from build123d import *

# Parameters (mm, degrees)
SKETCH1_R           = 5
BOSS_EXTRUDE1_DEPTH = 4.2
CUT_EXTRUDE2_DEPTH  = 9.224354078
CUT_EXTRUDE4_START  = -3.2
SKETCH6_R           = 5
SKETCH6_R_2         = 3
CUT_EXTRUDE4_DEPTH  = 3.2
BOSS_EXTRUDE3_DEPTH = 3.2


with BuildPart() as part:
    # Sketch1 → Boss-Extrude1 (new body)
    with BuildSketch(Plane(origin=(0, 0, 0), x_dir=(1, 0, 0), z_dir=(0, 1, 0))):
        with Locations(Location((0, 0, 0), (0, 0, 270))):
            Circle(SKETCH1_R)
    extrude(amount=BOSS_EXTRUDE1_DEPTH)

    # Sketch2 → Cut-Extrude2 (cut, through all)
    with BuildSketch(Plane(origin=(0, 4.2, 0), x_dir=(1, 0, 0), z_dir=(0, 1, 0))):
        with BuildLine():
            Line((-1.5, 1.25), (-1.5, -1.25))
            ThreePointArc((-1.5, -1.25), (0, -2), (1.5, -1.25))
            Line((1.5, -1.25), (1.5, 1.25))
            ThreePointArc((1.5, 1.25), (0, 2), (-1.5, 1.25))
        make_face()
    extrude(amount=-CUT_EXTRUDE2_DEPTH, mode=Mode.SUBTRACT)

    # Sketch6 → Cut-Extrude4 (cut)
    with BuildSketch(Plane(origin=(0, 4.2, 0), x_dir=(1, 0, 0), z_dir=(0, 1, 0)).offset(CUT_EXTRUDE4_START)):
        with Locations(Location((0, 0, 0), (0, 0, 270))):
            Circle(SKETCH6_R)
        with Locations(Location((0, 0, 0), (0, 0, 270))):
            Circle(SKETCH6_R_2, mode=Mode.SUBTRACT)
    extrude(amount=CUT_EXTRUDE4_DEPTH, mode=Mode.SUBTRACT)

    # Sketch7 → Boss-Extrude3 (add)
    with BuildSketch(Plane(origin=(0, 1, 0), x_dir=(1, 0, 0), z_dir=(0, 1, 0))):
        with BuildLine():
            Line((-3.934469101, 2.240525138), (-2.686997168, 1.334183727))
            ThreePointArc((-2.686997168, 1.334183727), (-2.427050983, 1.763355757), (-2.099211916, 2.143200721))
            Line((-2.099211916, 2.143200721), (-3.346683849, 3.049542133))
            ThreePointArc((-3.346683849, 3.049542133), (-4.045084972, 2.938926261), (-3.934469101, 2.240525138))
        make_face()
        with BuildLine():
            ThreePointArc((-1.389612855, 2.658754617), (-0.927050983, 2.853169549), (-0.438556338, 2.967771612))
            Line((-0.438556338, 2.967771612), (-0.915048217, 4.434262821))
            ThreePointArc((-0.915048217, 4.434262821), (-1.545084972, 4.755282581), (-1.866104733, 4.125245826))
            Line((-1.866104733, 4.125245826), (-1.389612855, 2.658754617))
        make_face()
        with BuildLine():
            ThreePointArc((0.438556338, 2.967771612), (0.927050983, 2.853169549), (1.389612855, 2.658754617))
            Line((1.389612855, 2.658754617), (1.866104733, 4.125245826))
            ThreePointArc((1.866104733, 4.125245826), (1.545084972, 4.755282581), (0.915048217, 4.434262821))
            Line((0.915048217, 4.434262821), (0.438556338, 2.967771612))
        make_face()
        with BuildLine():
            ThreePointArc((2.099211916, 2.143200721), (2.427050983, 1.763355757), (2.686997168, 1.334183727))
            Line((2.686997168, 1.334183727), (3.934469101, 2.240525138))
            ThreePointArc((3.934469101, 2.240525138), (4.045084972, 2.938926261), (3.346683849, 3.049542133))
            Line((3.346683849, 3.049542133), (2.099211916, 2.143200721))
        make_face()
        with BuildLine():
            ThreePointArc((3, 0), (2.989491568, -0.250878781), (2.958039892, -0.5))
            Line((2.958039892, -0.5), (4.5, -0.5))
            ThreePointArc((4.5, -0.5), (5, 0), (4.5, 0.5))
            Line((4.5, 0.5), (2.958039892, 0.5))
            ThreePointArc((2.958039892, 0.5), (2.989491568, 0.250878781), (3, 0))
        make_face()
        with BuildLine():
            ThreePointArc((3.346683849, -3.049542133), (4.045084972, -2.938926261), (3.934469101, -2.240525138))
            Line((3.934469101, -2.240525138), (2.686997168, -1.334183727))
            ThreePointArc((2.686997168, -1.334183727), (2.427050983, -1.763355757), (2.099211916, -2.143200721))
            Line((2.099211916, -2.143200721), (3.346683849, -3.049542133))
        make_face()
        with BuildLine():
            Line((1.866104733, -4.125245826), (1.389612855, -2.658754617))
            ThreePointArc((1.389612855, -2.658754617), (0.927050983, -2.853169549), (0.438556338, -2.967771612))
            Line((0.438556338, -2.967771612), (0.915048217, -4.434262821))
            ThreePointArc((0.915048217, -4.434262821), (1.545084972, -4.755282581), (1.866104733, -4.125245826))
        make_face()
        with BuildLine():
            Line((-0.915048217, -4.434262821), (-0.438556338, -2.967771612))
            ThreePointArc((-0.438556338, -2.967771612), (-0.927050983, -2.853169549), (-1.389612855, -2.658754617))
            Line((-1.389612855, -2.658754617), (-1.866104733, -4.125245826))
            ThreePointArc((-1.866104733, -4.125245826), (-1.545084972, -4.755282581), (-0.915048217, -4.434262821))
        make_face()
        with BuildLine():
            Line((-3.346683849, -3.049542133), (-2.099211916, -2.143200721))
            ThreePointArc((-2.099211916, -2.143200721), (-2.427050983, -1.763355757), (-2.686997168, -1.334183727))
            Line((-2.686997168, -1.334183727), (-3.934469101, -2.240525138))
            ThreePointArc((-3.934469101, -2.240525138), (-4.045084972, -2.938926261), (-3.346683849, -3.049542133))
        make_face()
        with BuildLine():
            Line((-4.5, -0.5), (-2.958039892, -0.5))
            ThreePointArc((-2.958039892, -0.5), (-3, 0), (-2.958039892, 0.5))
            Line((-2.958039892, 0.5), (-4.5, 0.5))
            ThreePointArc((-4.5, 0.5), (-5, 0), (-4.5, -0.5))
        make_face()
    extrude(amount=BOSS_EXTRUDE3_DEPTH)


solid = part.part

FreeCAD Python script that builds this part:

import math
import FreeCAD as App
import Part
import Sketcher
Q = App.Units.Quantity

doc = App.newDocument("Part")
body = doc.addObject("PartDesign::Body", "Body")

# Sketch on XZ plane
sketch1 = doc.addObject("Sketcher::SketchObject", "Sketch")
body.addObject(sketch1)
sketch1.AttachmentSupport = (doc.XZ_Plane, [""])
sketch1.MapMode = "FlatFace"
sketch1.addGeometry(Part.Circle(App.Vector(0, 0, 0), App.Vector(0, 0, 1), 5), False)
sketch1.addConstraint([
    Sketcher.Constraint("Coincident", 0, 3, -1, 1),
    Sketcher.Constraint("Diameter", 0, 10.0),
])
pad1 = doc.addObject("PartDesign::Pad", "Pad")
body.addObject(pad1)
pad1.Profile = sketch1
pad1.Length = 4.2
pad1.Reversed = True

# Sketch on XZ plane
sketch2 = doc.addObject("Sketcher::SketchObject", "Sketch001")
body.addObject(sketch2)
sketch2.AttachmentSupport = (doc.XZ_Plane, [""])
sketch2.MapMode = "FlatFace"
sketch2.AttachmentOffset = App.Placement(App.Vector(0, 0, -4.2), App.Rotation())
sketch2.addGeometry([
    Part.LineSegment(App.Vector(-1.5, -1.2, 0), App.Vector(-1.5, 1.2, 0)),
    Part.ArcOfCircle(Part.Circle(App.Vector(0, 0.1, 0), App.Vector(0, 0, 1), 1.9), math.radians(37), math.radians(143)),
    Part.LineSegment(App.Vector(1.5, 1.2, 0), App.Vector(1.5, -1.2, 0)),
    Part.ArcOfCircle(Part.Circle(App.Vector(0, -0.1, 0), App.Vector(0, 0, 1), 1.9), math.radians(-143), math.radians(-37)),
], False)
sketch2.addConstraint([
    Sketcher.Constraint("Coincident", 0, 2, 1, 2),
    Sketcher.Constraint("Coincident", 1, 1, 2, 1),
    Sketcher.Constraint("Coincident", 2, 2, 3, 2),
    Sketcher.Constraint("Coincident", 3, 1, 0, 1),
    Sketcher.Constraint("Vertical", 0),
    Sketcher.Constraint("Vertical", 2),
    Sketcher.Constraint("Equal", 1, 3),
    Sketcher.Constraint("Symmetric", 1, 3, 3, 3, -1, 1),
    Sketcher.Constraint("Symmetric", 0, 2, 1, 1, -2),
    Sketcher.Constraint("DistanceY", 0, 1, 0, 2, 2.5),
    Sketcher.Constraint("Radius", 1, 1.875),
    Sketcher.Constraint("DistanceX", 0, 2, 1, 1, 3.0),
])
pocket1 = doc.addObject("PartDesign::Pocket", "Pocket")
body.addObject(pocket1)
pocket1.Profile = sketch2
pocket1.Type = "ThroughAll"
pocket1.Reversed = True

# Sketch on XZ plane
sketch3 = doc.addObject("Sketcher::SketchObject", "Sketch002")
body.addObject(sketch3)
sketch3.AttachmentSupport = (doc.XZ_Plane, [""])
sketch3.MapMode = "FlatFace"
sketch3.AttachmentOffset = App.Placement(App.Vector(0, 0, -1), App.Rotation())
sketch3.addGeometry([
    Part.Circle(App.Vector(0, 0, 0), App.Vector(0, 0, 1), 5),
    Part.Circle(App.Vector(0, 0, 0), App.Vector(0, 0, 1), 3),
], False)
sketch3.addConstraint([
    Sketcher.Constraint("Coincident", 0, 3, -1, 1),
    Sketcher.Constraint("Coincident", 1, 3, -1, 1),
    Sketcher.Constraint("Diameter", 0, 10.0),
    Sketcher.Constraint("Diameter", 1, 6.0),
])
pocket2 = doc.addObject("PartDesign::Pocket", "Pocket001")
body.addObject(pocket2)
pocket2.Profile = sketch3
pocket2.Length = 3.2

# Sketch on XZ plane
sketch4 = doc.addObject("Sketcher::SketchObject", "Sketch003")
body.addObject(sketch4)
sketch4.AttachmentSupport = (doc.XZ_Plane, [""])
sketch4.MapMode = "FlatFace"
sketch4.AttachmentOffset = App.Placement(App.Vector(0, 0, -1), App.Rotation())
sketch4.addGeometry([
    Part.LineSegment(App.Vector(-3.9, -2.2, 0), App.Vector(-2.7, -1.3, 0)),  # 0
    Part.ArcOfCircle(Part.Circle(App.Vector(0, 0, 0), App.Vector(0, 0, 1), 3), math.radians(-153.59), math.radians(-134.41)),  # 1
    Part.LineSegment(App.Vector(-2.1, -2.1, 0), App.Vector(-3.3, -3, 0)),  # 2
    Part.ArcOfCircle(Part.Circle(App.Vector(-3.6, -2.6, 0), App.Vector(0, 0, 1), 0.5), math.radians(126), math.radians(306)),  # 3
    Part.ArcOfCircle(Part.Circle(App.Vector(0, 0, 0), App.Vector(0, 0, 1), 3), math.radians(-117.59), math.radians(-98.41)),  # 4
    Part.LineSegment(App.Vector(-0.4, -3, 0), App.Vector(-0.9, -4.4, 0)),  # 5
    Part.ArcOfCircle(Part.Circle(App.Vector(-1.4, -4.3, 0), App.Vector(0, 0, 1), 0.5), math.radians(162), math.radians(342)),  # 6
    Part.LineSegment(App.Vector(-1.9, -4.1, 0), App.Vector(-1.4, -2.7, 0)),  # 7
    Part.ArcOfCircle(Part.Circle(App.Vector(0, 0, 0), App.Vector(0, 0, 1), 3), math.radians(-81.59), math.radians(-62.41)),  # 8
    Part.LineSegment(App.Vector(1.4, -2.7, 0), App.Vector(1.9, -4.1, 0)),  # 9
    Part.ArcOfCircle(Part.Circle(App.Vector(1.4, -4.3, 0), App.Vector(0, 0, 1), 0.5), math.radians(-162), math.radians(18)),  # 10
    Part.LineSegment(App.Vector(0.9, -4.4, 0), App.Vector(0.4, -3, 0)),  # 11
    Part.ArcOfCircle(Part.Circle(App.Vector(0, 0, 0), App.Vector(0, 0, 1), 3), math.radians(-45.59), math.radians(-26.41)),  # 12
    Part.LineSegment(App.Vector(2.7, -1.3, 0), App.Vector(3.9, -2.2, 0)),  # 13
    Part.ArcOfCircle(Part.Circle(App.Vector(3.6, -2.6, 0), App.Vector(0, 0, 1), 0.5), math.radians(-126), math.radians(54)),  # 14
    Part.LineSegment(App.Vector(3.3, -3, 0), App.Vector(2.1, -2.1, 0)),  # 15
    Part.ArcOfCircle(Part.Circle(App.Vector(0, 0, 0), App.Vector(0, 0, 1), 3), math.radians(0), math.radians(9.59)),  # 16
    Part.LineSegment(App.Vector(3, 0.5, 0), App.Vector(4.5, 0.5, 0)),  # 17
    Part.ArcOfCircle(Part.Circle(App.Vector(4.5, 0, 0), App.Vector(0, 0, 1), 0.5), math.radians(-90), math.radians(90)),  # 18
    Part.LineSegment(App.Vector(4.5, -0.5, 0), App.Vector(3, -0.5, 0)),  # 19
    Part.ArcOfCircle(Part.Circle(App.Vector(0, 0, 0), App.Vector(0, 0, 1), 3), math.radians(-9.59), math.radians(0)),  # 20
    Part.ArcOfCircle(Part.Circle(App.Vector(3.6, 2.6, 0), App.Vector(0, 0, 1), 0.5), math.radians(-54), math.radians(126)),  # 21
    Part.LineSegment(App.Vector(3.9, 2.2, 0), App.Vector(2.7, 1.3, 0)),  # 22
    Part.ArcOfCircle(Part.Circle(App.Vector(0, 0, 0), App.Vector(0, 0, 1), 3), math.radians(26.41), math.radians(45.59)),  # 23
    Part.LineSegment(App.Vector(2.1, 2.1, 0), App.Vector(3.3, 3, 0)),  # 24
    Part.LineSegment(App.Vector(1.9, 4.1, 0), App.Vector(1.4, 2.7, 0)),  # 25
    Part.ArcOfCircle(Part.Circle(App.Vector(0, 0, 0), App.Vector(0, 0, 1), 3), math.radians(62.41), math.radians(81.59)),  # 26
    Part.LineSegment(App.Vector(0.4, 3, 0), App.Vector(0.9, 4.4, 0)),  # 27
    Part.ArcOfCircle(Part.Circle(App.Vector(1.4, 4.3, 0), App.Vector(0, 0, 1), 0.5), math.radians(-18), math.radians(162)),  # 28
    Part.LineSegment(App.Vector(-0.9, 4.4, 0), App.Vector(-0.4, 3, 0)),  # 29
    Part.ArcOfCircle(Part.Circle(App.Vector(0, 0, 0), App.Vector(0, 0, 1), 3), math.radians(98.41), math.radians(117.59)),  # 30
    Part.LineSegment(App.Vector(-1.4, 2.7, 0), App.Vector(-1.9, 4.1, 0)),  # 31
    Part.ArcOfCircle(Part.Circle(App.Vector(-1.4, 4.3, 0), App.Vector(0, 0, 1), 0.5), math.radians(18), math.radians(198)),  # 32
    Part.LineSegment(App.Vector(-3.3, 3, 0), App.Vector(-2.1, 2.1, 0)),  # 33
    Part.ArcOfCircle(Part.Circle(App.Vector(0, 0, 0), App.Vector(0, 0, 1), 3), math.radians(134.41), math.radians(153.59)),  # 34
    Part.LineSegment(App.Vector(-2.7, 1.3, 0), App.Vector(-3.9, 2.2, 0)),  # 35
    Part.ArcOfCircle(Part.Circle(App.Vector(-3.6, 2.6, 0), App.Vector(0, 0, 1), 0.5), math.radians(54), math.radians(234)),  # 36
    Part.LineSegment(App.Vector(-4.5, 0.5, 0), App.Vector(-3, 0.5, 0)),  # 37
    Part.ArcOfCircle(Part.Circle(App.Vector(0, 0, 0), App.Vector(0, 0, 1), 3), math.radians(170.41), math.radians(189.59)),  # 38
    Part.LineSegment(App.Vector(-3, -0.5, 0), App.Vector(-4.5, -0.5, 0)),  # 39
    Part.ArcOfCircle(Part.Circle(App.Vector(-4.5, 0, 0), App.Vector(0, 0, 1), 0.5), math.radians(90), math.radians(270)),  # 40
], False)
sketch4.addConstraint([
    Sketcher.Constraint("Coincident", 0, 2, 1, 1),
    Sketcher.Constraint("Coincident", 1, 2, 2, 1),
    Sketcher.Constraint("Tangent", 2, 2, 3, 2),
    Sketcher.Constraint("Tangent", 3, 1, 0, 1),
    Sketcher.Constraint("Coincident", 4, 2, 5, 1),
    Sketcher.Constraint("Tangent", 5, 2, 6, 2),
    Sketcher.Constraint("Tangent", 6, 1, 7, 1),
    Sketcher.Constraint("Coincident", 7, 2, 4, 1),
    Sketcher.Constraint("Coincident", 8, 2, 9, 1),
    Sketcher.Constraint("Tangent", 9, 2, 10, 2),
    Sketcher.Constraint("Tangent", 10, 1, 11, 1),
    Sketcher.Constraint("Coincident", 11, 2, 8, 1),
    Sketcher.Constraint("Coincident", 12, 2, 13, 1),
    Sketcher.Constraint("Tangent", 13, 2, 14, 2),
    Sketcher.Constraint("Tangent", 14, 1, 15, 1),
    Sketcher.Constraint("Coincident", 15, 2, 12, 1),
    Sketcher.Constraint("Coincident", 16, 2, 17, 1),
    Sketcher.Constraint("Tangent", 17, 2, 18, 2),
    Sketcher.Constraint("Tangent", 18, 1, 19, 1),
    Sketcher.Constraint("Coincident", 19, 2, 20, 1),
    Sketcher.Constraint("Tangent", 20, 2, 16, 1),
    Sketcher.Constraint("Tangent", 21, 1, 22, 1),
    Sketcher.Constraint("Coincident", 22, 2, 23, 1),
    Sketcher.Constraint("Coincident", 23, 2, 24, 1),
    Sketcher.Constraint("Tangent", 24, 2, 21, 2),
    Sketcher.Constraint("Coincident", 25, 2, 26, 1),
    Sketcher.Constraint("Coincident", 26, 2, 27, 1),
    Sketcher.Constraint("Tangent", 27, 2, 28, 2),
    Sketcher.Constraint("Tangent", 28, 1, 25, 1),
    Sketcher.Constraint("Coincident", 29, 2, 30, 1),
    Sketcher.Constraint("Coincident", 30, 2, 31, 1),
    Sketcher.Constraint("Tangent", 31, 2, 32, 2),
    Sketcher.Constraint("Tangent", 32, 1, 29, 1),
    Sketcher.Constraint("Coincident", 33, 2, 34, 1),
    Sketcher.Constraint("Coincident", 34, 2, 35, 1),
    Sketcher.Constraint("Tangent", 35, 2, 36, 2),
    Sketcher.Constraint("Tangent", 36, 1, 33, 1),
    Sketcher.Constraint("Coincident", 37, 2, 38, 1),
    Sketcher.Constraint("Coincident", 38, 2, 39, 1),
    Sketcher.Constraint("Tangent", 39, 2, 40, 2),
    Sketcher.Constraint("Tangent", 40, 1, 37, 1),
    Sketcher.Constraint("Horizontal", 17),
    Sketcher.Constraint("Horizontal", 19),
    Sketcher.Constraint("Horizontal", 37),
    Sketcher.Constraint("Horizontal", 39),
    Sketcher.Constraint("Coincident", 1, 3, -1, 1),
    Sketcher.Constraint("Coincident", 4, 3, -1, 1),
    Sketcher.Constraint("Coincident", 8, 3, -1, 1),
    Sketcher.Constraint("Coincident", 12, 3, -1, 1),
    Sketcher.Constraint("Coincident", 16, 3, -1, 1),
    Sketcher.Constraint("Coincident", 23, 3, -1, 1),
    Sketcher.Constraint("Coincident", 26, 3, -1, 1),
    Sketcher.Constraint("Coincident", 30, 3, -1, 1),
    Sketcher.Constraint("Coincident", 34, 3, -1, 1),
    Sketcher.Constraint("Coincident", 38, 3, -1, 1),
    Sketcher.Constraint("Equal", 1, 4),
    Sketcher.Constraint("Equal", 3, 6),
    Sketcher.Constraint("Equal", 4, 8),
    Sketcher.Constraint("Equal", 6, 10),
    Sketcher.Constraint("Equal", 8, 12),
    Sketcher.Constraint("Equal", 10, 14),
    Sketcher.Constraint("Equal", 12, 16),
    Sketcher.Constraint("Equal", 14, 18),
    Sketcher.Constraint("Equal", 16, 20),
    Sketcher.Constraint("Equal", 18, 21),
    Sketcher.Constraint("Equal", 20, 23),
    Sketcher.Constraint("Equal", 23, 26),
    Sketcher.Constraint("Equal", 21, 28),
    Sketcher.Constraint("Equal", 26, 30),
    Sketcher.Constraint("Equal", 28, 32),
    Sketcher.Constraint("Equal", 30, 34),
    Sketcher.Constraint("Equal", 32, 36),
    Sketcher.Constraint("Equal", 34, 38),
    Sketcher.Constraint("Equal", 36, 40),
    Sketcher.Constraint("Symmetric", 3, 3, 21, 3, -1, 1),
    Sketcher.Constraint("Symmetric", 6, 3, 28, 3, -1, 1),
    Sketcher.Constraint("Symmetric", 10, 3, 32, 3, -1, 1),
    Sketcher.Constraint("Symmetric", 14, 3, 36, 3, -1, 1),
    Sketcher.Constraint("Symmetric", 18, 3, 40, 3, -1, 1),
    Sketcher.Constraint("Symmetric", 6, 3, 10, 3, -2),
    Sketcher.Constraint("Symmetric", 3, 3, 14, 3, -2),
    Sketcher.Constraint("PointOnObject", 18, 3, -1),
    Sketcher.Constraint("PointOnObject", 20, 2, -1),
    Sketcher.Constraint("Parallel", 0, 2),
    Sketcher.Constraint("Parallel", 5, 7),
    Sketcher.Constraint("Parallel", 9, 11),
    Sketcher.Constraint("Parallel", 13, 15),
    Sketcher.Constraint("Parallel", 2, 22),
    Sketcher.Constraint("Parallel", 22, 24),
    Sketcher.Constraint("Parallel", 7, 25),
    Sketcher.Constraint("Parallel", 25, 27),
    Sketcher.Constraint("Parallel", 11, 29),
    Sketcher.Constraint("Parallel", 29, 31),
    Sketcher.Constraint("Parallel", 15, 33),
    Sketcher.Constraint("Parallel", 33, 35),
    Sketcher.Constraint("Horizontal", 7, 2, 8, 2),
    Sketcher.Constraint("Horizontal", 0, 2, 12, 2),
    Sketcher.Constraint("Equal", 0, 2),
    Sketcher.Constraint("Equal", 2, 5),
    Sketcher.Constraint("Equal", 5, 7),
    Sketcher.Constraint("Radius", 1, 3.0),
    Sketcher.Constraint("Radius", 3, 0.5),
    Sketcher.Constraint("Angle", 0, Q("36 deg")),
    Sketcher.Constraint("Angle", 5, Q("-108 deg")),
    Sketcher.Constraint("DistanceX", -1, 1, 18, 3, 4.5),
    Sketcher.Constraint("Distance", 0, 1.54196),
])
pad2 = doc.addObject("PartDesign::Pad", "Pad001")
body.addObject(pad2)
pad2.Profile = sketch4
pad2.Length = 3.2
pad2.Reversed = True

doc.recompute()
